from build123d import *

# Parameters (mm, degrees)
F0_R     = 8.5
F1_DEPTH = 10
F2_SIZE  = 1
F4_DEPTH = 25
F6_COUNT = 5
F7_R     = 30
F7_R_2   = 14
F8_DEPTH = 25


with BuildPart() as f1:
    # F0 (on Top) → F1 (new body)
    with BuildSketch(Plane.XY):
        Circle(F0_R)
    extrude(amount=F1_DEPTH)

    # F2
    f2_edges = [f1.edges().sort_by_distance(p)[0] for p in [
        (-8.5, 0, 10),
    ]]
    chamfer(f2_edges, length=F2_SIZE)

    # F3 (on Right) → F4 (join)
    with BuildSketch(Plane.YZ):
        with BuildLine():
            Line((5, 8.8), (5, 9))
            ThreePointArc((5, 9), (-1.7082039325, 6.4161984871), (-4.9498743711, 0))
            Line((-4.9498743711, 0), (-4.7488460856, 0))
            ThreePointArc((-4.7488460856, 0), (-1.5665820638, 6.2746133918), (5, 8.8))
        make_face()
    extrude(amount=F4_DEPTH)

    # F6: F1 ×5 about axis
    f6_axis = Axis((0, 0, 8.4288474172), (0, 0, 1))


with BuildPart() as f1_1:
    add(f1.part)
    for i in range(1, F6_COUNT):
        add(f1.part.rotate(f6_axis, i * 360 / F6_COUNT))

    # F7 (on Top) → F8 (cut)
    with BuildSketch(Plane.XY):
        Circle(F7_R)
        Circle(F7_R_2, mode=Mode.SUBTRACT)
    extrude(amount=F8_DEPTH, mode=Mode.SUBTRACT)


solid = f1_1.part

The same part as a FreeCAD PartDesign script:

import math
import FreeCAD as App
import Part
import Sketcher


def edges_at(feature, points):
    """Names of the edges that pass closest to the given points."""
    edges = feature.Shape.Edges
    near = lambda p: min(range(len(edges)), key=lambda i: edges[i].distToShape(Part.Vertex(*p))[0])
    return sorted({f"Edge{near(p) + 1}" for p in points})

doc = App.newDocument("Part")
body = doc.addObject("PartDesign::Body", "Body")

sketch1 = body.newObject("Sketcher::SketchObject", "Sketch")
sketch1.AttachmentSupport = (doc.getObject("XY_Plane"), [""])
sketch1.MapMode = "FlatFace"
sketch1.addGeometry(Part.Circle(App.Vector(0, 0, 0), App.Vector(0, 0, 1), 8), False)
sketch1.addConstraint(Sketcher.Constraint("Coincident", 0, 3, -1, 1))
sketch1.addConstraint(Sketcher.Constraint("Diameter", 0, 17.0))
pad1 = body.newObject("PartDesign::Pad", "Pad")
pad1.Profile = sketch1
pad1.Length = 10
doc.recompute()

chamfer = body.newObject("PartDesign::Chamfer", "Chamfer")
chamfer.Base = (pad1, edges_at(pad1, [(-8.5, 0, 10)]))
chamfer.Size = 1

sketch2 = body.newObject("Sketcher::SketchObject", "Sketch001")
sketch2.AttachmentSupport = (doc.getObject("YZ_Plane"), [""])
sketch2.MapMode = "FlatFace"
sketch2.addGeometry(Part.LineSegment(App.Vector(5, 8.8, 0), App.Vector(5, 9, 0)), False)
sketch2.addGeometry(Part.ArcOfCircle(Part.Circle(App.Vector(5, -1, 0), App.Vector(0, 0, 1), 10), math.radians(90), math.radians(174)), False)
sketch2.addGeometry(Part.LineSegment(App.Vector(-4.95, 0, 0), App.Vector(-4.75, 0, 0)), False)
sketch2.addGeometry(Part.ArcOfCircle(Part.Circle(App.Vector(5, -1, 0), App.Vector(0, 0, 1), 9.8), math.radians(90), math.radians(174)), False)
sketch2.addConstraint(Sketcher.Constraint("Coincident", 0, 2, 1, 1))
sketch2.addConstraint(Sketcher.Constraint("Coincident", 1, 2, 2, 1))
sketch2.addConstraint(Sketcher.Constraint("Coincident", 2, 2, 3, 2))
sketch2.addConstraint(Sketcher.Constraint("Coincident", 3, 1, 0, 1))
sketch2.addConstraint(Sketcher.Constraint("Vertical", 0))
sketch2.addConstraint(Sketcher.Constraint("Horizontal", 2))
sketch2.addConstraint(Sketcher.Constraint("Coincident", 3, 3, 1, 3))
sketch2.addConstraint(Sketcher.Constraint("PointOnObject", 1, 2, -1))
sketch2.addConstraint(Sketcher.Constraint("Vertical", 3, 3, 0, 2))
sketch2.addConstraint(Sketcher.Constraint("Radius", 1, 10.0))
sketch2.addConstraint(Sketcher.Constraint("Radius", 3, 9.8))
sketch2.addConstraint(Sketcher.Constraint("DistanceX", -1, 1, 1, 3, 5.0))
sketch2.addConstraint(Sketcher.Constraint("DistanceY", 1, 3, -1, 1, 1.0))
pad2 = body.newObject("PartDesign::Pad", "Pad001")
pad2.Profile = sketch2
pad2.Length = 25
body2 = doc.addObject("PartDesign::Body", "Body001")
doc.recompute()

body2.BaseFeature = body
doc.recompute()

body3 = doc.addObject("PartDesign::Body", "Body002")
body3.BaseFeature = body
body3.Placement = App.Placement(App.Vector(0, 0, 0), App.Rotation(App.Vector(0, 0, 1), 72))
boolean = body2.newObject("PartDesign::Boolean", "Boolean")
boolean.Type = "Fuse"
boolean.addObjects([body3])
doc.recompute()

body4 = doc.addObject("PartDesign::Body", "Body003")
body4.BaseFeature = body
body4.Placement = App.Placement(App.Vector(0, 0, 0), App.Rotation(App.Vector(0, 0, 1), 144))
boolean2 = body2.newObject("PartDesign::Boolean", "Boolean001")
boolean2.Type = "Fuse"
boolean2.addObjects([body4])
doc.recompute()

body5 = doc.addObject("PartDesign::Body", "Body004")
body5.BaseFeature = body
body5.Placement = App.Placement(App.Vector(0, 0, 0), App.Rotation(App.Vector(0, 0, 1), 216))
boolean3 = body2.newObject("PartDesign::Boolean", "Boolean002")
boolean3.Type = "Fuse"
boolean3.addObjects([body5])
doc.recompute()

body.Placement = App.Placement(App.Vector(0, 0, 0), App.Rotation(App.Vector(0, 0, 1), 288))
boolean4 = body2.newObject("PartDesign::Boolean", "Boolean003")
boolean4.Type = "Fuse"
boolean4.addObjects([body])

sketch3 = body2.newObject("Sketcher::SketchObject", "Sketch002")
sketch3.AttachmentSupport = (doc.getObject("XY_Plane001"), [""])
sketch3.MapMode = "FlatFace"
sketch3.addGeometry(Part.Circle(App.Vector(0, 0, 0), App.Vector(0, 0, 1), 30), False)
sketch3.addGeometry(Part.Circle(App.Vector(0, 0, 0), App.Vector(0, 0, 1), 14), False)
sketch3.addConstraint(Sketcher.Constraint("Coincident", 0, 3, -1, 1))
sketch3.addConstraint(Sketcher.Constraint("Coincident", 1, 3, -1, 1))
sketch3.addConstraint(Sketcher.Constraint("Diameter", 0, 60.0))
sketch3.addConstraint(Sketcher.Constraint("Diameter", 1, 28.0))
pocket1 = body2.newObject("PartDesign::Pocket", "Pocket")
pocket1.Profile = sketch3
pocket1.Length = 25
pocket1.Reversed = True

doc.recompute()
